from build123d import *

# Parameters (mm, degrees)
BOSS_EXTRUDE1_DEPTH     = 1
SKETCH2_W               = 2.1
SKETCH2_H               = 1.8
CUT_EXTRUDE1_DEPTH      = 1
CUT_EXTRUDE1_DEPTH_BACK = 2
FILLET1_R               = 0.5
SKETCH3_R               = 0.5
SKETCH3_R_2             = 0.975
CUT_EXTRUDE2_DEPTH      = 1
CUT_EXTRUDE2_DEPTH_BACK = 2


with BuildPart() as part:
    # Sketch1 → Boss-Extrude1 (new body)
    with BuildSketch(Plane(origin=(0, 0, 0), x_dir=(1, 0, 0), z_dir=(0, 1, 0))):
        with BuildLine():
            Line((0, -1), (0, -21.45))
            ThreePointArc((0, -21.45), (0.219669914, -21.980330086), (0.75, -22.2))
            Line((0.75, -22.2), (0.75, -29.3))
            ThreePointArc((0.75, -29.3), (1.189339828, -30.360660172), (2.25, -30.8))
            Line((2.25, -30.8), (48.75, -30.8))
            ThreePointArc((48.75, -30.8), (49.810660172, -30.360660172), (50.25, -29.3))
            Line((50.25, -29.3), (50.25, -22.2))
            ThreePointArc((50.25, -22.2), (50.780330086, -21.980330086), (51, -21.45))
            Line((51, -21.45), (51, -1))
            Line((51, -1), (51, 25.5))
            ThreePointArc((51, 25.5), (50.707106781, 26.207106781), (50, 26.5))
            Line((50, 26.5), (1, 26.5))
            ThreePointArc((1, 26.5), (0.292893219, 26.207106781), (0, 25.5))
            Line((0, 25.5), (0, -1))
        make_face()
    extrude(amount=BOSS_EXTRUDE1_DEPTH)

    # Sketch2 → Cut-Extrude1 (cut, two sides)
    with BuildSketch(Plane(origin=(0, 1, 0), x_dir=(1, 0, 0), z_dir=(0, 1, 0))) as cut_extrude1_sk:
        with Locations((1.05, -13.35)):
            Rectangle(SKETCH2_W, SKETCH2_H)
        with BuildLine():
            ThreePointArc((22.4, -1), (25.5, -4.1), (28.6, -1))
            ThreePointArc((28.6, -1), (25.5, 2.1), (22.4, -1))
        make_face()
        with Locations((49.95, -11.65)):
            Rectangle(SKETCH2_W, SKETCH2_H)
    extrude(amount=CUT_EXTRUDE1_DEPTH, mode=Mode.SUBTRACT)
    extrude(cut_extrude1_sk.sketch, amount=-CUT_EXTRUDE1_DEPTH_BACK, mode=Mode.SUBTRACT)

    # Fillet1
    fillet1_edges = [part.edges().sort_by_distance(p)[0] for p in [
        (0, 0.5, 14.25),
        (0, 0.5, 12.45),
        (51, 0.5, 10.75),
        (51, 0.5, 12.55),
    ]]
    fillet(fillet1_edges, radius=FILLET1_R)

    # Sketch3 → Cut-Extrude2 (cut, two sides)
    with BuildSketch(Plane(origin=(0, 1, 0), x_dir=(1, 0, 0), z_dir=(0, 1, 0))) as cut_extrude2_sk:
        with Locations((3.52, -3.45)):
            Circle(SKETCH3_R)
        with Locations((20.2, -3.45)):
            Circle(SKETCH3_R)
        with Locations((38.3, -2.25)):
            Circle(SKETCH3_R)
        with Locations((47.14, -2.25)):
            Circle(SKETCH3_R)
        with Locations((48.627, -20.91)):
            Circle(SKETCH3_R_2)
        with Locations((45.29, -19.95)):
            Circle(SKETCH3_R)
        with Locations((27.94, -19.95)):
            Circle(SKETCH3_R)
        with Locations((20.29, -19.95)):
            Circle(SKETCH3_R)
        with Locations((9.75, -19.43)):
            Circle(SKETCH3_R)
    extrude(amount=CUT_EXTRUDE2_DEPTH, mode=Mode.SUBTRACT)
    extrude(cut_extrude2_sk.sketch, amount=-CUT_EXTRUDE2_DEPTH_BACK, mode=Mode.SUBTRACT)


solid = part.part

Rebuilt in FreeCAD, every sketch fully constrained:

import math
import FreeCAD as App
import Part
import Sketcher

V = App.Vector
Q = App.Units.Quantity


def edges_at(feature, points):
    """Names of the edges that pass closest to the given points."""
    edges = feature.Shape.Edges
    near = lambda p: min(range(len(edges)), key=lambda i: edges[i].distToShape(Part.Vertex(*p))[0])
    return sorted({f"Edge{near(p) + 1}" for p in points})

doc = App.newDocument("Part")
params = doc.addObject("Spreadsheet::Sheet", "Params")
for row, (alias, value) in enumerate([
    ("sketch1_radius", "1 mm"),
    ("sketch1_radius2", "1.5 mm"),
    ("sketch1_width", "49 mm"),
    ("sketch1_radius3", "0.75 mm"),
    ("sketch1_width2", "46.5 mm"),
    ("pad1_length", "1 mm"),
    ("sketch2_diameter", "6.2 mm"),
    ("sketch2_width", "2.1 mm"),
    ("sketch2_height", "1.8 mm"),
    ("fillet_radius", "0.5 mm"),
    ("sketch3_diameter", "1 mm"),
    ("sketch3_diameter2", "1.95 mm"),
], start=1):
    params.set(f"A{row}", alias)
    params.set(f"B{row}", "=" + value)
    params.setAlias(f"B{row}", alias)

body = doc.addObject("PartDesign::Body", "Body")

sketch1 = body.newObject("Sketcher::SketchObject", "Sketch")
sketch1.AttachmentSupport = (doc.getObject("XZ_Plane"), [""])
sketch1.MapMode = "FlatFace"
sketch1.addGeometry([
    Part.ArcOfCircle(Part.Circle(V(0.8, 21.4, 0), V(0, 0, 1), 0.8), math.radians(90), math.radians(180)),
    Part.LineSegment(V(0.8, 22.2, 0), V(0.8, 29.3, 0)),
    Part.ArcOfCircle(Part.Circle(V(2.2, 29.3, 0), V(0, 0, 1), 1.5), math.radians(90), math.radians(180)),
    Part.LineSegment(V(2.2, 30.8, 0), V(48.8, 30.8, 0)),
    Part.ArcOfCircle(Part.Circle(V(48.8, 29.3, 0), V(0, 0, 1), 1.5), math.radians(0), math.radians(90)),
    Part.LineSegment(V(50.2, 29.3, 0), V(50.2, 22.2, 0)),
    Part.ArcOfCircle(Part.Circle(V(50.2, 21.4, 0), V(0, 0, 1), 0.8), math.radians(0), math.radians(90)),
    Part.LineSegment(V(51, 21.4, 0), V(51, -25.5, 0)),
    Part.ArcOfCircle(Part.Circle(V(50, -25.5, 0), V(0, 0, 1), 1), math.radians(-90), math.radians(0)),
    Part.LineSegment(V(50, -26.5, 0), V(1, -26.5, 0)),
    Part.ArcOfCircle(Part.Circle(V(1, -25.5, 0), V(0, 0, 1), 1), math.radians(-180), math.radians(-90)),
    Part.LineSegment(V(0, -25.5, 0), V(0, 21.4, 0)),
], False)
sketch1.addConstraint([
    Sketcher.Constraint("Coincident", 0, 1, 1, 1),
    Sketcher.Constraint("Tangent", 1, 2, 2, 2),
    Sketcher.Constraint("Tangent", 2, 1, 3, 1),
    Sketcher.Constraint("Tangent", 3, 2, 4, 2),
    Sketcher.Constraint("Tangent", 4, 1, 5, 1),
    Sketcher.Constraint("Coincident", 5, 2, 6, 2),
    Sketcher.Constraint("Tangent", 6, 1, 7, 1),
    Sketcher.Constraint("Tangent", 7, 2, 8, 2),
    Sketcher.Constraint("Tangent", 8, 1, 9, 1),
    Sketcher.Constraint("Tangent", 9, 2, 10, 2),
    Sketcher.Constraint("Tangent", 10, 1, 11, 1),
    Sketcher.Constraint("Tangent", 11, 2, 0, 2),
    Sketcher.Constraint("Vertical", 1),
    Sketcher.Constraint("Horizontal", 3),
    Sketcher.Constraint("Vertical", 5),
    Sketcher.Constraint("Vertical", 7),
    Sketcher.Constraint("Horizontal", 9),
    Sketcher.Constraint("Vertical", 11),
    Sketcher.Constraint("Equal", 2, 4),
    Sketcher.Constraint("Equal", 0, 6),
    Sketcher.Constraint("Equal", 8, 10),
    Sketcher.Constraint("PointOnObject", 10, 1, -2),
    Sketcher.Constraint("Horizontal", 0, 3, 6, 3),
    Sketcher.Constraint("Vertical", 6, 3, 4, 1),
    Sketcher.Constraint("Radius", 8, Q("1 mm")),
    Sketcher.Constraint("Radius", 2, Q("1.5 mm")),
    Sketcher.Constraint("DistanceX", 9, 2, 9, 1, Q("49 mm")),
    Sketcher.Constraint("Radius", 0, Q("0.75 mm")),
    Sketcher.Constraint("DistanceX", 3, 1, 3, 2, Q("46.5 mm")),
    Sketcher.Constraint("DistanceY", 1, 1, 1, 2, Q("7.1 mm")),
    Sketcher.Constraint("DistanceY", 7, 2, 7, 1, Q("46.95 mm")),
    Sketcher.Constraint("DistanceY", -1, 1, 2, 3, Q("29.3 mm")),
])
sketch1.setExpression("Constraints[24]", "Params.sketch1_radius")
sketch1.setExpression("Constraints[25]", "Params.sketch1_radius2")
sketch1.setExpression("Constraints[26]", "Params.sketch1_width")
sketch1.setExpression("Constraints[27]", "Params.sketch1_radius3")
sketch1.setExpression("Constraints[28]", "Params.sketch1_width2")
pad1 = body.newObject("PartDesign::Pad", "Pad")
pad1.Profile = sketch1
pad1.setExpression("Length", "Params.pad1_length")
pad1.Reversed = True

sketch2 = body.newObject("Sketcher::SketchObject", "Sketch001")
sketch2.AttachmentSupport = (doc.getObject("XZ_Plane"), [""])
sketch2.MapMode = "FlatFace"
sketch2.AttachmentOffset = App.Placement(V(0, 0, -1), App.Rotation())
sketch2.addGeometry([
    Part.LineSegment(V(0, 12.4, 0), V(0, 14.2, 0)),
    Part.LineSegment(V(0, 14.2, 0), V(2.1, 14.2, 0)),
    Part.LineSegment(V(2.1, 14.2, 0), V(2.1, 12.4, 0)),
    Part.LineSegment(V(2.1, 12.4, 0), V(0, 12.4, 0)),
    Part.Circle(V(25.5, 1, 0), V(0, 0, 1), 3.1),
    Part.LineSegment(V(48.9, 10.8, 0), V(48.9, 12.6, 0)),
    Part.LineSegment(V(48.9, 12.6, 0), V(51, 12.6, 0)),
    Part.LineSegment(V(51, 12.6, 0), V(51, 10.8, 0)),
    Part.LineSegment(V(51, 10.8, 0), V(48.9, 10.8, 0)),
], False)
sketch2.addConstraint([
    Sketcher.Constraint("Coincident", 0, 2, 1, 1),
    Sketcher.Constraint("Coincident", 1, 2, 2, 1),
    Sketcher.Constraint("Coincident", 2, 2, 3, 1),
    Sketcher.Constraint("Coincident", 3, 2, 0, 1),
    Sketcher.Constraint("Coincident", 5, 2, 6, 1),
    Sketcher.Constraint("Coincident", 6, 2, 7, 1),
    Sketcher.Constraint("Coincident", 7, 2, 8, 1),
    Sketcher.Constraint("Coincident", 8, 2, 5, 1),
    Sketcher.Constraint("Vertical", 0),
    Sketcher.Constraint("Horizontal", 1),
    Sketcher.Constraint("Vertical", 2),
    Sketcher.Constraint("Horizontal", 3),
    Sketcher.Constraint("Vertical", 5),
    Sketcher.Constraint("Horizontal", 6),
    Sketcher.Constraint("Vertical", 7),
    Sketcher.Constraint("Horizontal", 8),
    Sketcher.Constraint("PointOnObject", 0, 2, -2),
    Sketcher.Constraint("Equal", 3, 6),
    Sketcher.Constraint("Equal", 2, 5),
    Sketcher.Constraint("Diameter", 4, Q("6.2 mm")),
    Sketcher.Constraint("DistanceX", 1, 1, 1, 2, Q("2.1 mm")),
    Sketcher.Constraint("DistanceY", 0, 1, 0, 2, Q("1.8 mm")),
    Sketcher.Constraint("DistanceY", -1, 1, 4, 3, Q("1 mm")),
    Sketcher.Constraint("DistanceX", -1, 1, 6, 2, Q("51 mm")),
    Sketcher.Constraint("DistanceX", -1, 1, 4, 3, Q("25.5 mm")),
    Sketcher.Constraint("DistanceY", 2, 2, 5, 2, Q("0.1 mm")),
    Sketcher.Constraint("DistanceY", -1, 1, 0, 2, Q("14.25 mm")),
])
sketch2.setExpression("Constraints[19]", "Params.sketch2_diameter")
sketch2.setExpression("Constraints[20]", "Params.sketch2_width")
sketch2.setExpression("Constraints[21]", "Params.sketch2_height")
pocket1 = body.newObject("PartDesign::Pocket", "Pocket")
pocket1.Profile = sketch2
pocket1.Type = "ThroughAll"
pocket1.Midplane = True
doc.recompute()

fillet = body.newObject("PartDesign::Fillet", "Fillet")
fillet.Base = (pocket1, edges_at(pocket1, [
    (0, 0.5, 14.25),
    (0, 0.5, 12.45),
    (51, 0.5, 10.75),
    (51, 0.5, 12.55),
]))
fillet.setExpression("Radius", "Params.fillet_radius")

sketch3 = body.newObject("Sketcher::SketchObject", "Sketch002")
sketch3.AttachmentSupport = (doc.getObject("XZ_Plane"), [""])
sketch3.MapMode = "FlatFace"
sketch3.AttachmentOffset = App.Placement(V(0, 0, -1), App.Rotation())
sketch3.addGeometry([
    Part.Circle(V(3.5, 3.5, 0), V(0, 0, 1), 0.5),
    Part.Circle(V(20.2, 3.5, 0), V(0, 0, 1), 0.5),
    Part.Circle(V(38.3, 2.2, 0), V(0, 0, 1), 0.5),
    Part.Circle(V(47.1, 2.2, 0), V(0, 0, 1), 0.5),
    Part.Circle(V(48.6, 20.9, 0), V(0, 0, 1), 1),
    Part.Circle(V(45.3, 19.9, 0), V(0, 0, 1), 0.5),
    Part.Circle(V(27.9, 19.9, 0), V(0, 0, 1), 0.5),
    Part.Circle(V(20.3, 19.9, 0), V(0, 0, 1), 0.5),
    Part.Circle(V(9.8, 19.4, 0), V(0, 0, 1), 0.5),
], False)
sketch3.addConstraint([
    Sketcher.Constraint("Equal", 0, 1),
    Sketcher.Constraint("Equal", 1, 2),
    Sketcher.Constraint("Equal", 2, 3),
    Sketcher.Constraint("Equal", 3, 5),
    Sketcher.Constraint("Equal", 5, 6),
    Sketcher.Constraint("Equal", 6, 7),
    Sketcher.Constraint("Equal", 7, 8),
    Sketcher.Constraint("Horizontal", 0, 3, 1, 3),
    Sketcher.Constraint("Horizontal", 2, 3, 3, 3),
    Sketcher.Constraint("Horizontal", 5, 3, 6, 3),
    Sketcher.Constraint("Horizontal", 6, 3, 7, 3),
    Sketcher.Constraint("Diameter", 0, Q("1 mm")),
    Sketcher.Constraint("Diameter", 4, Q("1.95 mm")),
    Sketcher.Constraint("DistanceX", 7, 3, 5, 3, Q("25 mm")),
    Sketcher.Constraint("DistanceX", -1, 1, 1, 3, Q("20.2 mm")),
    Sketcher.Constraint("DistanceX", -1, 1, 2, 3, Q("38.3 mm")),
    Sketcher.Constraint("DistanceY", 2, 3, 1, 3, Q("1.2 mm")),
    Sketcher.Constraint("DistanceY", 3, 3, 5, 3, Q("17.7 mm")),
    Sketcher.Constraint("DistanceX", 6, 3, 3, 3, Q("19.2 mm")),
    Sketcher.Constraint("DistanceX", -1, 1, 0, 3, Q("3.52 mm")),
    Sketcher.Constraint("DistanceY", -1, 1, 0, 3, Q("3.45 mm")),
    Sketcher.Constraint("DistanceX", -1, 1, 3, 3, Q("47.14 mm")),
    Sketcher.Constraint("DistanceY", -1, 1, 4, 3, Q("20.91 mm")),
    Sketcher.Constraint("DistanceX", -1, 1, 5, 3, Q("45.29 mm")),
    Sketcher.Constraint("DistanceX", -1, 1, 8, 3, Q("9.75 mm")),
    Sketcher.Constraint("DistanceY", -1, 1, 8, 3, Q("19.43 mm")),
    Sketcher.Constraint("DistanceX", -1, 1, 4, 3, Q("48.627 mm")),
])
sketch3.setExpression("Constraints[11]", "Params.sketch3_diameter")
sketch3.setExpression("Constraints[12]", "Params.sketch3_diameter2")
pocket2 = body.newObject("PartDesign::Pocket", "Pocket001")
pocket2.Profile = sketch3
pocket2.Type = "ThroughAll"
pocket2.Midplane = True

doc.recompute()
